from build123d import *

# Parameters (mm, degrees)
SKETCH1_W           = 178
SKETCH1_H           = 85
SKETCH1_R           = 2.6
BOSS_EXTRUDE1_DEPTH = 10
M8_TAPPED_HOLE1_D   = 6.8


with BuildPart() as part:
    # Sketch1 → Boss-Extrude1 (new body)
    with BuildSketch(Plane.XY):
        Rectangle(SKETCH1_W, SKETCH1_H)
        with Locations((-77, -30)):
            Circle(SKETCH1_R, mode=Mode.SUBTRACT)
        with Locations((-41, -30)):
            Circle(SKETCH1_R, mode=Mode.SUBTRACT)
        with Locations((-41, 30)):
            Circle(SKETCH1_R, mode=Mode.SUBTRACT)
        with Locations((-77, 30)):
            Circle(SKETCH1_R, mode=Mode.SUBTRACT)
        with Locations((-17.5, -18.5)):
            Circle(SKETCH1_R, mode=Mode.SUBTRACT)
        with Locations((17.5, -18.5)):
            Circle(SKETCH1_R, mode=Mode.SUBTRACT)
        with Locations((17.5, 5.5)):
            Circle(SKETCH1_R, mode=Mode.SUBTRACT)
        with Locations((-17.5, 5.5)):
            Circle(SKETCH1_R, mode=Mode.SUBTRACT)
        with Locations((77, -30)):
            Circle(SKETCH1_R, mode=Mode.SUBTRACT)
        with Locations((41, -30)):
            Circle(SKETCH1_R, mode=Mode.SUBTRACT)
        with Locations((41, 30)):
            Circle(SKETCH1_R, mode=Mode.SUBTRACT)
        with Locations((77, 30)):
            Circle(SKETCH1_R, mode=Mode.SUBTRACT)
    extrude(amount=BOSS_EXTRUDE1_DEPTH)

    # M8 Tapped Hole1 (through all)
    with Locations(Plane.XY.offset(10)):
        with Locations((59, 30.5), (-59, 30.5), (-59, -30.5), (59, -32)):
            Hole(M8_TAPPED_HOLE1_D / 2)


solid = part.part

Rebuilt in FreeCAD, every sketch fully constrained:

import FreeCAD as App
import Part
import Sketcher
Q = App.Units.Quantity


def add_polygon(sketch, points):
    """Adds a closed chain of lines whose ends are joined by coincident constraints."""
    first, n = sketch.GeometryCount, len(points)
    for a, b in zip(points, points[1:] + points[:1]):
        sketch.addGeometry(Part.LineSegment(App.Vector(*a, 0), App.Vector(*b, 0)), False)
    for i in range(n):
        sketch.addConstraint(Sketcher.Constraint("Coincident", first + i, 2, first + (i + 1) % n, 1))

doc = App.newDocument("Part")
body = doc.addObject("PartDesign::Body", "Body")

sketch1 = body.newObject("Sketcher::SketchObject", "Sketch")
sketch1.AttachmentSupport = (doc.getObject("XY_Plane"), [""])
sketch1.MapMode = "FlatFace"
add_polygon(sketch1, [(-89, 42.5), (-89, -42.5), (89, -42.5), (89, 42.5)])
sketch1.addGeometry(Part.Circle(App.Vector(-77, -30, 0), App.Vector(0, 0, 1), 2.6), False)
sketch1.addGeometry(Part.Circle(App.Vector(-41, -30, 0), App.Vector(0, 0, 1), 2.6), False)
sketch1.addGeometry(Part.Circle(App.Vector(-17.5, -18.5, 0), App.Vector(0, 0, 1), 2.6), False)
sketch1.addGeometry(Part.Circle(App.Vector(17.5, -18.5, 0), App.Vector(0, 0, 1), 2.6), False)
sketch1.addGeometry(Part.Circle(App.Vector(41, -30, 0), App.Vector(0, 0, 1), 2.6), False)
sketch1.addGeometry(Part.Circle(App.Vector(77, -30, 0), App.Vector(0, 0, 1), 2.6), False)
sketch1.addGeometry(Part.Circle(App.Vector(-17.5, 5.5, 0), App.Vector(0, 0, 1), 2.6), False)
sketch1.addGeometry(Part.Circle(App.Vector(-77, 30, 0), App.Vector(0, 0, 1), 2.6), False)
sketch1.addGeometry(Part.Circle(App.Vector(-41, 30, 0), App.Vector(0, 0, 1), 2.6), False)
sketch1.addGeometry(Part.Circle(App.Vector(17.5, 5.5, 0), App.Vector(0, 0, 1), 2.6), False)
sketch1.addGeometry(Part.Circle(App.Vector(41, 30, 0), App.Vector(0, 0, 1), 2.6), False)
sketch1.addGeometry(Part.Circle(App.Vector(77, 30, 0), App.Vector(0, 0, 1), 2.6), False)
sketch1.addConstraint([
    Sketcher.Constraint("Vertical", 0),
    Sketcher.Constraint("Horizontal", 1),
    Sketcher.Constraint("Vertical", 2),
    Sketcher.Constraint("Horizontal", 3),
    Sketcher.Constraint("Equal", 4, 5),
    Sketcher.Constraint("Equal", 5, 6),
    Sketcher.Constraint("Equal", 6, 7),
    Sketcher.Constraint("Equal", 7, 8),
    Sketcher.Constraint("Equal", 8, 9),
    Sketcher.Constraint("Equal", 9, 10),
    Sketcher.Constraint("Equal", 10, 11),
    Sketcher.Constraint("Equal", 11, 12),
    Sketcher.Constraint("Equal", 12, 13),
    Sketcher.Constraint("Equal", 13, 14),
    Sketcher.Constraint("Equal", 14, 15),
    Sketcher.Constraint("Symmetric", 9, 3, 11, 3, -1, 1),
    Sketcher.Constraint("Symmetric", 8, 3, 12, 3, -1, 1),
    Sketcher.Constraint("Symmetric", 5, 3, 14, 3, -1, 1),
    Sketcher.Constraint("Symmetric", 4, 3, 15, 3, -1, 1),
    Sketcher.Constraint("Symmetric", 0, 2, 2, 2, -1, 1),
    Sketcher.Constraint("Symmetric", 6, 3, 7, 3, -2),
    Sketcher.Constraint("Symmetric", 5, 3, 8, 3, -2),
    Sketcher.Constraint("Symmetric", 4, 3, 9, 3, -2),
    Sketcher.Constraint("Symmetric", 10, 3, 13, 3, -2),
    Sketcher.Constraint("Horizontal", 4, 3, 5, 3),
    Sketcher.Constraint("Vertical", 6, 3, 10, 3),
    Sketcher.Constraint("Diameter", 4, Q("5.2 mm")),
    Sketcher.Constraint("DistanceX", 1, 1, 1, 2, Q("178 mm")),
    Sketcher.Constraint("DistanceY", 0, 2, 0, 1, Q("85 mm")),
    Sketcher.Constraint("DistanceX", 4, 3, -1, 1, Q("77 mm")),
    Sketcher.Constraint("DistanceY", 4, 3, -1, 1, Q("30 mm")),
    Sketcher.Constraint("DistanceX", 5, 3, -1, 1, Q("41 mm")),
    Sketcher.Constraint("DistanceX", 6, 3, 7, 3, Q("35 mm")),
    Sketcher.Constraint("DistanceY", 6, 3, 10, 3, Q("24 mm")),
    Sketcher.Constraint("DistanceY", 0, 2, 6, 3, Q("24 mm")),
])
pad1 = body.newObject("PartDesign::Pad", "Pad")
pad1.Profile = sketch1
pad1.Length = 10

sketch2 = body.newObject("Sketcher::SketchObject", "Sketch001")
sketch2.AttachmentSupport = (doc.getObject("XY_Plane"), [""])
sketch2.MapMode = "FlatFace"
sketch2.AttachmentOffset = App.Placement(App.Vector(0, 0, 10), App.Rotation())
sketch2.addGeometry([
    Part.Circle(App.Vector(59, 30.5, 0), App.Vector(0, 0, 1), 3.4),
    Part.Circle(App.Vector(-59, 30.5, 0), App.Vector(0, 0, 1), 3.4),
    Part.Circle(App.Vector(-59, -30.5, 0), App.Vector(0, 0, 1), 3.4),
    Part.Circle(App.Vector(59, -32, 0), App.Vector(0, 0, 1), 3.4),
], False)
sketch2.addConstraint([
    Sketcher.Constraint("Equal", 0, 1),
    Sketcher.Constraint("Equal", 1, 2),
    Sketcher.Constraint("Equal", 2, 3),
    Sketcher.Constraint("Symmetric", 0, 3, 2, 3, -1, 1),
    Sketcher.Constraint("Symmetric", 0, 3, 1, 3, -2),
    Sketcher.Constraint("Vertical", 0, 3, 3, 3),
    Sketcher.Constraint("Diameter", 0, Q("6.8 mm")),
    Sketcher.Constraint("DistanceX", -1, 1, 0, 3, Q("59 mm")),
    Sketcher.Constraint("DistanceY", 3, 3, -1, 1, Q("32 mm")),
    Sketcher.Constraint("DistanceY", 2, 3, 1, 3, Q("61 mm")),
])
doc.recompute()
hole = body.newObject("PartDesign::Hole", "Hole")
hole.Profile = sketch2
hole.ThreadType = "None"
hole.Diameter = 6.8
hole.DepthType = "ThroughAll"

doc.recompute()
